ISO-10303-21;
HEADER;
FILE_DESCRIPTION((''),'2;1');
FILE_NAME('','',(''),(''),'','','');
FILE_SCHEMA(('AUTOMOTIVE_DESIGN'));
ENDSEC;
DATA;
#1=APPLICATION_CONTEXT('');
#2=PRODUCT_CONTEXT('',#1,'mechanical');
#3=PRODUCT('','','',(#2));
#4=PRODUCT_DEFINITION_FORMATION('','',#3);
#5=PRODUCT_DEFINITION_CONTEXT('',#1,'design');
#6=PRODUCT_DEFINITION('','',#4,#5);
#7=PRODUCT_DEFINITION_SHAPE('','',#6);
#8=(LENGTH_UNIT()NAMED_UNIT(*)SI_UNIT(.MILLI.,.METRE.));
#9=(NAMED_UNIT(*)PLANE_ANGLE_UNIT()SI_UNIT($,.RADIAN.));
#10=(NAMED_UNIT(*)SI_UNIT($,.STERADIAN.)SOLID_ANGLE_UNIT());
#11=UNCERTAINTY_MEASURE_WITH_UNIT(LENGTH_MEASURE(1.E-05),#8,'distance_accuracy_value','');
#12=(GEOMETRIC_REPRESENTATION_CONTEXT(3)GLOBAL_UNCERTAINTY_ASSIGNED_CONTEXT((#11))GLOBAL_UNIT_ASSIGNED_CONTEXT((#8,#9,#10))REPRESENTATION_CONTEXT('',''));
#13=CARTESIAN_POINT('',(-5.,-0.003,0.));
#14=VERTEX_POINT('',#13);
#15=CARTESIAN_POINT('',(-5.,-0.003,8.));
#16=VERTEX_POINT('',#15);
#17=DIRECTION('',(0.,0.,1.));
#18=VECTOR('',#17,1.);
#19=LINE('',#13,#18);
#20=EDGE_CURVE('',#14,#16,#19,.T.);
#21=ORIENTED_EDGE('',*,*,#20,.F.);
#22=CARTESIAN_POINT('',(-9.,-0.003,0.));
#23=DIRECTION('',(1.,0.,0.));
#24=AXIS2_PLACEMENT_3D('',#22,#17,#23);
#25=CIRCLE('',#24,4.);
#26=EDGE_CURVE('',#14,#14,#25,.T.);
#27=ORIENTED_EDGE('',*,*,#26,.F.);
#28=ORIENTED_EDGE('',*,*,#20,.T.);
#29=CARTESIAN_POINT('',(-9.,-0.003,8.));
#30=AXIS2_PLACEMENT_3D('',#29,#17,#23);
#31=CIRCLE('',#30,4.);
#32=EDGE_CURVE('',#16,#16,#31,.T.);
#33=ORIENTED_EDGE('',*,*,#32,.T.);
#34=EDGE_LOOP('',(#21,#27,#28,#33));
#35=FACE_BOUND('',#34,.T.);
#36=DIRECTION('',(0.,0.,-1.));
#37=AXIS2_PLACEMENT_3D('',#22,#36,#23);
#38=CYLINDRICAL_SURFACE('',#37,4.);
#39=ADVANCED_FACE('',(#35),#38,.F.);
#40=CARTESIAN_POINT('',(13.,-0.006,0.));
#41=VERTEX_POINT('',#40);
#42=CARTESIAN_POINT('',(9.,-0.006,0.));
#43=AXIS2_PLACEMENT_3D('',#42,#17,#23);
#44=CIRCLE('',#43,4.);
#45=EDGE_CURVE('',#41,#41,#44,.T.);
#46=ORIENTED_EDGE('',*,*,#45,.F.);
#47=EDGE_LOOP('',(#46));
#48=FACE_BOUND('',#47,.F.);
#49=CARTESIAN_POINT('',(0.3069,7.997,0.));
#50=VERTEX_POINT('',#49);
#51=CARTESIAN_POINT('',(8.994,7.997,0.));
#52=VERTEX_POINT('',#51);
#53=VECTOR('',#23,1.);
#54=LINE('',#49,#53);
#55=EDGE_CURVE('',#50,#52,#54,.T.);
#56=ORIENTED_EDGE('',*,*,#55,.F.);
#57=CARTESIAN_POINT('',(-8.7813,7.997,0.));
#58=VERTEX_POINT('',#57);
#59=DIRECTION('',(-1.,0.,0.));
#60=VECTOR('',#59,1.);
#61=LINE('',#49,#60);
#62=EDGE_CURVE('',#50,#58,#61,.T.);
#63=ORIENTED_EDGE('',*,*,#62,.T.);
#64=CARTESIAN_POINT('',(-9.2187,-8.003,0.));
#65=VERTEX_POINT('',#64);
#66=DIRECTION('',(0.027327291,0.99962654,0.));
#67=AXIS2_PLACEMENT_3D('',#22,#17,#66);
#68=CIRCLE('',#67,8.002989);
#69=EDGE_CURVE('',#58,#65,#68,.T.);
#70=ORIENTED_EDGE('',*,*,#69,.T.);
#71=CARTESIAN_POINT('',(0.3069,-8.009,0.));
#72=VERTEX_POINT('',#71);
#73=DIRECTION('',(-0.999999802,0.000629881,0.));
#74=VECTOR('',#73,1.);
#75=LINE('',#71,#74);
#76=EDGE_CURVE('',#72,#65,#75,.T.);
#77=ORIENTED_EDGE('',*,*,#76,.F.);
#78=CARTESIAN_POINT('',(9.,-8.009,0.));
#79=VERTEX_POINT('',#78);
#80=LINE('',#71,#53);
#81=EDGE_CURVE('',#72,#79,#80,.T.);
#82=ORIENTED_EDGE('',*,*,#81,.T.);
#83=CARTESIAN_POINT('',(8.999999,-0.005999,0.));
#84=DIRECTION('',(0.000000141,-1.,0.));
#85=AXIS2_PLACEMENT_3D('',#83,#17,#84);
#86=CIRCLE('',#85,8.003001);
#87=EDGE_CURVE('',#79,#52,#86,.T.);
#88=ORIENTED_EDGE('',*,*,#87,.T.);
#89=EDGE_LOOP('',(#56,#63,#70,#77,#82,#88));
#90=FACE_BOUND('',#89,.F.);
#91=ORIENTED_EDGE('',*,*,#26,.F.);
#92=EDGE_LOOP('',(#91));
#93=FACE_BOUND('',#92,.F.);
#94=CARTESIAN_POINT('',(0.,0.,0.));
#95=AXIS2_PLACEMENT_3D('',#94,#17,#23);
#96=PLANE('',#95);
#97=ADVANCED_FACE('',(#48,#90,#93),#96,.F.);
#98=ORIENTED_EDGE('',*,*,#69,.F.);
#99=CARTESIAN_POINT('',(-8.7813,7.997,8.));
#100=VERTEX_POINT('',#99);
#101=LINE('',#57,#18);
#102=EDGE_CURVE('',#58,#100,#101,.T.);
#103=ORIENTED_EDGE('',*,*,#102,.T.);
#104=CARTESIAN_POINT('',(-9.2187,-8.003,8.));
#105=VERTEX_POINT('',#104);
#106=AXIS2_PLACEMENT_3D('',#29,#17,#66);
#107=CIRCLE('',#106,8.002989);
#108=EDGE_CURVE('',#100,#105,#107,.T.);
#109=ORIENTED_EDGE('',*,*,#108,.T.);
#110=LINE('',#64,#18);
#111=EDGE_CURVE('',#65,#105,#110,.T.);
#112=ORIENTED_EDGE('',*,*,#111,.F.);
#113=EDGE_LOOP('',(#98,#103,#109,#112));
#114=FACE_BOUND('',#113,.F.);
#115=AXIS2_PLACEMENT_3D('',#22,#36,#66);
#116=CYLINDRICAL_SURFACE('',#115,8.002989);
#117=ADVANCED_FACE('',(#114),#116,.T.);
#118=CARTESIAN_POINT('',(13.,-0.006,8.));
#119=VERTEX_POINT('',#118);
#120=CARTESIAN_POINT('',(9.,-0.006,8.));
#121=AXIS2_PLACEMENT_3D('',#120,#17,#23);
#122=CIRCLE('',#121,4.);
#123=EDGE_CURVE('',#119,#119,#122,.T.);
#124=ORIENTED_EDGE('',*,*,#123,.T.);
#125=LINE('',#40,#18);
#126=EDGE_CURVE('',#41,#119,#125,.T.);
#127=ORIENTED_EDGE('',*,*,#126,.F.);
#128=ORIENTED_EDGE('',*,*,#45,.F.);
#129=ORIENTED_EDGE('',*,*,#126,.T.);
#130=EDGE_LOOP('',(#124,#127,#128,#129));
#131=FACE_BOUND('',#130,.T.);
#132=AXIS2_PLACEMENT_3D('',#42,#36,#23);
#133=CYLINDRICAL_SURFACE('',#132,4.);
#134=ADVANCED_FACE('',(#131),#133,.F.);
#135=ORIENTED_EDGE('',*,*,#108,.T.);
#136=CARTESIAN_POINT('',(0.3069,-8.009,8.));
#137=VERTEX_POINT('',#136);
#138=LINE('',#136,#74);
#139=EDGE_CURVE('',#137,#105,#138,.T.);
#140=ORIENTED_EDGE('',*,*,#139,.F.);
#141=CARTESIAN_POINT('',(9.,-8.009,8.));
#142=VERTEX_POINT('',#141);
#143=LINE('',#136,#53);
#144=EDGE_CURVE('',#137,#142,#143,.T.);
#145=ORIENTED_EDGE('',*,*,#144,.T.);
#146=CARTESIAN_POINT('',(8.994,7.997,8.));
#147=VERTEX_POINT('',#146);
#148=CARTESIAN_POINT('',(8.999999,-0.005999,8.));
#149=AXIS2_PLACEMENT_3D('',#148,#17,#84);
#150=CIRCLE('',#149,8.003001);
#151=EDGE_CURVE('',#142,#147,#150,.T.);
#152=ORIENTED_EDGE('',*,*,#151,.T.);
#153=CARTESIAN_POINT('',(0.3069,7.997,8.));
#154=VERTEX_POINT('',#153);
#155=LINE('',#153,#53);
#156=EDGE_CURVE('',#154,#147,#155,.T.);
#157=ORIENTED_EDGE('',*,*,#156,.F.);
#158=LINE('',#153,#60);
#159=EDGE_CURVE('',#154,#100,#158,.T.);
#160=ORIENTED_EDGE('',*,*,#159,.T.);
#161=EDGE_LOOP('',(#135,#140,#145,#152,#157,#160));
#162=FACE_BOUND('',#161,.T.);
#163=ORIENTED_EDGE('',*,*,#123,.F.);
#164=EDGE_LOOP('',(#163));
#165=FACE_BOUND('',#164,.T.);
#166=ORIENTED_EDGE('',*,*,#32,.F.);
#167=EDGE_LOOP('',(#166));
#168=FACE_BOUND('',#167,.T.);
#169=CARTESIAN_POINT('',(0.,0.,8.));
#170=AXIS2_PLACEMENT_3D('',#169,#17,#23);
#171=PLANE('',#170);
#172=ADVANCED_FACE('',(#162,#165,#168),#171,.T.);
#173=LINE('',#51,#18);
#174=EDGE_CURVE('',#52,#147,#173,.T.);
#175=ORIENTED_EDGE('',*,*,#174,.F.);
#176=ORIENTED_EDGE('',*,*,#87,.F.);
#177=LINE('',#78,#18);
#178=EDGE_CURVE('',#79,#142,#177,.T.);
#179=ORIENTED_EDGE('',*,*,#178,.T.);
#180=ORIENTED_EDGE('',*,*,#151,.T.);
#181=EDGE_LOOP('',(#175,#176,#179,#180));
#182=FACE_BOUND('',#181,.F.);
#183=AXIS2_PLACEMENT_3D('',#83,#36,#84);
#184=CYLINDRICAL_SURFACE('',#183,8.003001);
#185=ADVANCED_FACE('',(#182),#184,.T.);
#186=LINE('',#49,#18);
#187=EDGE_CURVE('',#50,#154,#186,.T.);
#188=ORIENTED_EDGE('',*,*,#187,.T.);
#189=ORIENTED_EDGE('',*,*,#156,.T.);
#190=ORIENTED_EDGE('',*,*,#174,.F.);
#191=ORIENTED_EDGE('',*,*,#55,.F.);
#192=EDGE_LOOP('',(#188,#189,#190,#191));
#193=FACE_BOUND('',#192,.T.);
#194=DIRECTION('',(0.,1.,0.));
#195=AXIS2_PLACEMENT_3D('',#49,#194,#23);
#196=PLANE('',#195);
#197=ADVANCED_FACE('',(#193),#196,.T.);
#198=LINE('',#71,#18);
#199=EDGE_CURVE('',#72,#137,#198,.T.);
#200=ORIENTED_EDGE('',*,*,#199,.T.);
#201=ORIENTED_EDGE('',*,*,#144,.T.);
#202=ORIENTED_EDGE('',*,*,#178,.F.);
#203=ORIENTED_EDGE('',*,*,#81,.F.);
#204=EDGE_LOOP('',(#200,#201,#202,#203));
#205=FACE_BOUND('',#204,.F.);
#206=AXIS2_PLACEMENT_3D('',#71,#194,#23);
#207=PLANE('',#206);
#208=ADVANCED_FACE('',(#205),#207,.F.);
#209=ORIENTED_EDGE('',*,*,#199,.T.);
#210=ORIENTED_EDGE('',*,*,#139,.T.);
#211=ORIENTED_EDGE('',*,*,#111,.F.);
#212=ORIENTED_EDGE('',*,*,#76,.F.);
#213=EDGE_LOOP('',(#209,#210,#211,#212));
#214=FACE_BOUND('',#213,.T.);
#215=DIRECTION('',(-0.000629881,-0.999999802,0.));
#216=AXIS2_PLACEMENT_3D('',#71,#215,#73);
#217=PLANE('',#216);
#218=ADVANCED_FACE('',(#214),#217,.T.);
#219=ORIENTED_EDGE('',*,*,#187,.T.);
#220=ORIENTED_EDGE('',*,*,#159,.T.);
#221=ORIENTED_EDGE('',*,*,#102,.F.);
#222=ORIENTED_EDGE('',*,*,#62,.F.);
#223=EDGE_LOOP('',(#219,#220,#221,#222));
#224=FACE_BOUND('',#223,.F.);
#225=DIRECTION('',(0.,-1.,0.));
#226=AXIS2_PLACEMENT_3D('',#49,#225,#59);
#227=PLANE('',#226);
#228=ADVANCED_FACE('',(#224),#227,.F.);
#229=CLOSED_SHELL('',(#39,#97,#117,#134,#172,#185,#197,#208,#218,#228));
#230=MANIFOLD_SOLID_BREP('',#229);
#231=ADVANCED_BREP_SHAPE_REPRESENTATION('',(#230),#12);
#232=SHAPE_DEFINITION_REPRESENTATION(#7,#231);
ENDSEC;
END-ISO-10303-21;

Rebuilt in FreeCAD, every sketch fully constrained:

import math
import FreeCAD as App
import Part
import Sketcher
from FreeCAD import Vector
Q = App.Units.Quantity

doc = App.newDocument("Part")
body = doc.addObject("PartDesign::Body", "Body")

# Sketch on XY plane
sketch1 = body.newObject("Sketcher::SketchObject", "Sketch")
sketch1.AttachmentSupport = (doc.getObject("XY_Plane"), [""])
sketch1.MapMode = "FlatFace"
sketch1.addGeometry(Part.LineSegment(Vector(-9.2187, -8.003, 0), Vector(0.3069, -8.009, 0)), False)
sketch1.addGeometry(Part.LineSegment(Vector(0.3069, -8.009, 0), Vector(9, -8.009, 0)), False)
sketch1.addGeometry(Part.ArcOfCircle(Part.Circle(Vector(9, -0.006, 0), Vector(0, 0, 1), 8.003), math.radians(-90), math.radians(90.042956)), False)
sketch1.addGeometry(Part.LineSegment(Vector(8.994, 7.997, 0), Vector(-8.7813, 7.997, 0)), False)
sketch1.addGeometry(Part.ArcOfCircle(Part.Circle(Vector(-9, -0.003, 0), Vector(0, 0, 1), 8.002989), math.radians(88.434067), math.radians(268.434067)), False)
sketch1.addGeometry(Part.Circle(Vector(9, -0.006, 0), Vector(0, 0, 1), 4), False)
sketch1.addGeometry(Part.Circle(Vector(-9, -0.003, 0), Vector(0, 0, 1), 4), False)
sketch1.addConstraint(Sketcher.Constraint("Coincident", 0, 2, 1, 1))
sketch1.addConstraint(Sketcher.Constraint("Tangent", 1, 2, 2, 1))
sketch1.addConstraint(Sketcher.Constraint("Coincident", 2, 2, 3, 1))
sketch1.addConstraint(Sketcher.Constraint("Coincident", 3, 2, 4, 1))
sketch1.addConstraint(Sketcher.Constraint("Coincident", 4, 2, 0, 1))
sketch1.addConstraint(Sketcher.Constraint("Horizontal", 1))
sketch1.addConstraint(Sketcher.Constraint("Horizontal", 3))
sketch1.addConstraint(Sketcher.Constraint("Coincident", 5, 3, 2, 3))
sketch1.addConstraint(Sketcher.Constraint("Coincident", 6, 3, 4, 3))
sketch1.addConstraint(Sketcher.Constraint("Equal", 2, 4))
sketch1.addConstraint(Sketcher.Constraint("Equal", 5, 6))
sketch1.addConstraint(Sketcher.Constraint("Diameter", 5, Q("8 mm")))
sketch1.addConstraint(Sketcher.Constraint("DistanceX", 4, 3, 2, 3, Q("18 mm")))
sketch1.addConstraint(Sketcher.Constraint("DistanceY", 4, 3, 2, 2, Q("8 mm")))
sketch1.addConstraint(Sketcher.Constraint("DistanceY", 4, 2, 4, 3, Q("8 mm")))
sketch1.addConstraint(Sketcher.Constraint("DistanceX", -1, 1, 2, 3, Q("9 mm")))
sketch1.addConstraint(Sketcher.Constraint("Radius", 2, Q("8.003 mm")))
sketch1.addConstraint(Sketcher.Constraint("DistanceX", 1, 1, 1, 2, Q("8.693 mm")))
sketch1.addConstraint(Sketcher.Constraint("DistanceX", 3, 2, 3, 1, Q("17.7753 mm")))
sketch1.addConstraint(Sketcher.Constraint("DistanceY", 2, 3, -1, 1, Q("0.006 mm")))
pad1 = body.newObject("PartDesign::Pad", "Pad")
pad1.Profile = sketch1
pad1.Length = 8

doc.recompute()
